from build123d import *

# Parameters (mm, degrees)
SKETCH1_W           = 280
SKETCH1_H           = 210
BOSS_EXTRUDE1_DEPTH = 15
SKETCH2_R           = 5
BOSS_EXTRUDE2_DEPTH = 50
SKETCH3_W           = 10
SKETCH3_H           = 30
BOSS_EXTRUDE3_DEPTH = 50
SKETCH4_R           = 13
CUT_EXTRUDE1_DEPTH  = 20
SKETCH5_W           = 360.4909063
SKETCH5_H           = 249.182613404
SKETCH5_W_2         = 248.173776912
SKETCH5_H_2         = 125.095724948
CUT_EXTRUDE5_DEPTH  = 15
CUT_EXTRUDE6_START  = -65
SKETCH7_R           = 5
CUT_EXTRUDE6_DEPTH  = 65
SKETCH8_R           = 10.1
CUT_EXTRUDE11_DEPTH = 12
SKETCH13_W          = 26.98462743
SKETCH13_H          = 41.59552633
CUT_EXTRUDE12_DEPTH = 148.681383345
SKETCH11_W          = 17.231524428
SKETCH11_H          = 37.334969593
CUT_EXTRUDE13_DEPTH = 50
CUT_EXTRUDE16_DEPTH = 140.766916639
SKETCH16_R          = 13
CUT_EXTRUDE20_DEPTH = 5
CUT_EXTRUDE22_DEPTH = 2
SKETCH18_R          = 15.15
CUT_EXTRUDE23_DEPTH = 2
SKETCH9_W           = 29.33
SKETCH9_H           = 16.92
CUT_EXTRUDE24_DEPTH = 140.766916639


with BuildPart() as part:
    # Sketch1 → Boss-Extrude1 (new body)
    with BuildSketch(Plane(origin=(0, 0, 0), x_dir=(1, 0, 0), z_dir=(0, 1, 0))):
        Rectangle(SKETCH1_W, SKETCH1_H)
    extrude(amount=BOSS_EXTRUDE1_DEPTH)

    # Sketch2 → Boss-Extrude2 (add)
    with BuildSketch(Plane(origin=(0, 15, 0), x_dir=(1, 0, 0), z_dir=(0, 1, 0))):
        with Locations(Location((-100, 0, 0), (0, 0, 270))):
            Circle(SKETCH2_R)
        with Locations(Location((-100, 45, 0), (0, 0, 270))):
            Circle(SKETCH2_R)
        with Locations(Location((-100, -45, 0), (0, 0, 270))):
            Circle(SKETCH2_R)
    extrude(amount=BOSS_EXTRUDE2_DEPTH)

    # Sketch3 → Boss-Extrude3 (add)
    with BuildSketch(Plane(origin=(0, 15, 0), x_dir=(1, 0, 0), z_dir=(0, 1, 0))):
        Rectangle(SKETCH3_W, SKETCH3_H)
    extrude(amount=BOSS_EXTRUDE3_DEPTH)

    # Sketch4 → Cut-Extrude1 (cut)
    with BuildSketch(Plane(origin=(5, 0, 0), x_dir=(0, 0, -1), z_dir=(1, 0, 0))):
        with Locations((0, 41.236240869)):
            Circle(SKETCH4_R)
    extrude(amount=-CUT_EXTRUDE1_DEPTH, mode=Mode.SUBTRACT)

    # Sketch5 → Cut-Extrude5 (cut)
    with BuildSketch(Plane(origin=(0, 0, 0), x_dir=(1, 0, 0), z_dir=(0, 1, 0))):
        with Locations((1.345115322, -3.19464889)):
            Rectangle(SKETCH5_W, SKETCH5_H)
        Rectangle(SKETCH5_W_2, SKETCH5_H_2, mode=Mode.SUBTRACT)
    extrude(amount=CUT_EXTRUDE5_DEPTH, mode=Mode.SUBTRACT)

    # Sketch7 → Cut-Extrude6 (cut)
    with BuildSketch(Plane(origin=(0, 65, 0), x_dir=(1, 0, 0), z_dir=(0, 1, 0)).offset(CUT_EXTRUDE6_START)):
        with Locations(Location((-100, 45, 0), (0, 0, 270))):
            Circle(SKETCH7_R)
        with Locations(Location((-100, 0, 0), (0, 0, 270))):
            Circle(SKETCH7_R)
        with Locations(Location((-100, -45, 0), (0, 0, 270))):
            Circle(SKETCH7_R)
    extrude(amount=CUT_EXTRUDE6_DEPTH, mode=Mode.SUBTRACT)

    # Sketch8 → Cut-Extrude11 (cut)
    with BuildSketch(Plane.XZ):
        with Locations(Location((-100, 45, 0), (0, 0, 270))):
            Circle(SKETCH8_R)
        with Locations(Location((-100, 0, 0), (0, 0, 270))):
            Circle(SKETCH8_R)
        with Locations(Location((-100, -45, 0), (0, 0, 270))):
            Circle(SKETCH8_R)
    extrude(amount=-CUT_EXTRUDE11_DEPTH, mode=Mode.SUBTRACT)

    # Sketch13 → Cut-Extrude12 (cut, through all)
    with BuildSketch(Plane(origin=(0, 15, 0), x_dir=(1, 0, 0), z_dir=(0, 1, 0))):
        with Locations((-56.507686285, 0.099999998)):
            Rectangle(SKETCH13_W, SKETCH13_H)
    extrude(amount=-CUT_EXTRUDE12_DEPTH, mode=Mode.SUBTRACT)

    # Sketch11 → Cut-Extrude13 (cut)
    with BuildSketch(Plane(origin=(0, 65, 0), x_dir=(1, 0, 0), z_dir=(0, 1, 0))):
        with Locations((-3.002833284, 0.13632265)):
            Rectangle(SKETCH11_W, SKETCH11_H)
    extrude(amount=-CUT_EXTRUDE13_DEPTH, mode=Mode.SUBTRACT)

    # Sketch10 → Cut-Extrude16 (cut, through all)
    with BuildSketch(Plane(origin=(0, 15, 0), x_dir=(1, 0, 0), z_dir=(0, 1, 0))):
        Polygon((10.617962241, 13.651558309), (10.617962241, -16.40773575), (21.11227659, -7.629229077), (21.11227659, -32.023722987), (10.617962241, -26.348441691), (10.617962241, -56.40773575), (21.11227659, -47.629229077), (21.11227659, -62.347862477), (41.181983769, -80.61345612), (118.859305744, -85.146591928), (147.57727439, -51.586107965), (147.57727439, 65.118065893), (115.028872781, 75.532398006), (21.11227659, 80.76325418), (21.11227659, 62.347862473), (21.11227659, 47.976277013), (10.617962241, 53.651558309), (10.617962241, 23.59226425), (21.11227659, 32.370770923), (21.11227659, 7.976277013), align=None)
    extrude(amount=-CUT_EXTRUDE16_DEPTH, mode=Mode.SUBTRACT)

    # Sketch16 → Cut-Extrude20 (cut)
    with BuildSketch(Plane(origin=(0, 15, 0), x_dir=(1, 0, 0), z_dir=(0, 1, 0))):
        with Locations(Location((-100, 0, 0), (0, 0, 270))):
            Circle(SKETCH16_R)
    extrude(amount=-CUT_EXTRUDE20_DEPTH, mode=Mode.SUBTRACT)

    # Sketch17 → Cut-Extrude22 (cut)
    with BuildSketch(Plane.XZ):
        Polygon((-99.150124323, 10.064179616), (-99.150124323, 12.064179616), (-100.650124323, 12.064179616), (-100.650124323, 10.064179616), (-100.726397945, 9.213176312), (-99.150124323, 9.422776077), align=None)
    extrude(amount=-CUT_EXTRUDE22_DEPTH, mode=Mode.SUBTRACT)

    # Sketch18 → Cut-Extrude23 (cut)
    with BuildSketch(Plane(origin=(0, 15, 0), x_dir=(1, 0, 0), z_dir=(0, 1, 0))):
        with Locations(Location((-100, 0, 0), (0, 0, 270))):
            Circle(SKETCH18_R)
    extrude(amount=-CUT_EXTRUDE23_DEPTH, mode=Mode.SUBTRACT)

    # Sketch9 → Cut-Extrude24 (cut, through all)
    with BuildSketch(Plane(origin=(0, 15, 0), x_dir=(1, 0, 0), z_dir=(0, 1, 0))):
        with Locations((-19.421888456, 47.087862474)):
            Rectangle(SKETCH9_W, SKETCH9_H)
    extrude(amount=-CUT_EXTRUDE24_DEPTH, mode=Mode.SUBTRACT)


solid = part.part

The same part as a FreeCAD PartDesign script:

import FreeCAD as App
import Part
import Sketcher
from FreeCAD import Vector

doc = App.newDocument("Part")
body = doc.addObject("PartDesign::Body", "Body")

# Sketch on XZ plane
sketch1 = body.newObject("Sketcher::SketchObject", "Sketch")
sketch1.AttachmentSupport = (doc.getObject("XZ_Plane"), [""])
sketch1.MapMode = "FlatFace"
sketch1.addGeometry([
    Part.LineSegment(Vector(-140, -105, 0), Vector(-140, 105, 0)),
    Part.LineSegment(Vector(-140, 105, 0), Vector(140, 105, 0)),
    Part.LineSegment(Vector(140, 105, 0), Vector(140, -105, 0)),
    Part.LineSegment(Vector(140, -105, 0), Vector(-140, -105, 0)),
], False)
sketch1.addConstraint([
    Sketcher.Constraint("Coincident", 0, 2, 1, 1),
    Sketcher.Constraint("Coincident", 1, 2, 2, 1),
    Sketcher.Constraint("Coincident", 2, 2, 3, 1),
    Sketcher.Constraint("Coincident", 3, 2, 0, 1),
    Sketcher.Constraint("Vertical", 0),
    Sketcher.Constraint("Horizontal", 1),
    Sketcher.Constraint("Vertical", 2),
    Sketcher.Constraint("Horizontal", 3),
    Sketcher.Constraint("Symmetric", 0, 2, 2, 2, -1, 1),
    Sketcher.Constraint("DistanceX", 1, 1, 1, 2, 280.0),
    Sketcher.Constraint("DistanceY", 0, 1, 0, 2, 210.0),
])
pad1 = body.newObject("PartDesign::Pad", "Pad")
pad1.Profile = sketch1
pad1.Length = 15
pad1.Reversed = True

# Sketch on XZ plane
sketch2 = body.newObject("Sketcher::SketchObject", "Sketch001")
sketch2.AttachmentSupport = (doc.getObject("XZ_Plane"), [""])
sketch2.MapMode = "FlatFace"
sketch2.AttachmentOffset = App.Placement(Vector(0, 0, -15), App.Rotation())
sketch2.addGeometry([
    Part.Circle(Vector(-100, 0, 0), Vector(0, 0, 1), 5),
    Part.Circle(Vector(-100, -45, 0), Vector(0, 0, 1), 5),
    Part.Circle(Vector(-100, 45, 0), Vector(0, 0, 1), 5),
], False)
sketch2.addConstraint([
    Sketcher.Constraint("Equal", 0, 1),
    Sketcher.Constraint("Equal", 1, 2),
    Sketcher.Constraint("Symmetric", 1, 3, 2, 3, -1),
    Sketcher.Constraint("PointOnObject", 0, 3, -1),
    Sketcher.Constraint("Vertical", 0, 3, 1, 3),
    Sketcher.Constraint("Diameter", 0, 10.0),
    Sketcher.Constraint("DistanceX", 0, 3, -1, 1, 100.0),
    Sketcher.Constraint("DistanceY", 1, 3, -1, 1, 45.0),
])
pad2 = body.newObject("PartDesign::Pad", "Pad001")
pad2.Profile = sketch2
pad2.Length = 50
pad2.Reversed = True

# Sketch on XZ plane
sketch3 = body.newObject("Sketcher::SketchObject", "Sketch002")
sketch3.AttachmentSupport = (doc.getObject("XZ_Plane"), [""])
sketch3.MapMode = "FlatFace"
sketch3.AttachmentOffset = App.Placement(Vector(0, 0, -15), App.Rotation())
sketch3.addGeometry([
    Part.LineSegment(Vector(-5, -15, 0), Vector(-5, 15, 0)),
    Part.LineSegment(Vector(-5, 15, 0), Vector(5, 15, 0)),
    Part.LineSegment(Vector(5, 15, 0), Vector(5, -15, 0)),
    Part.LineSegment(Vector(5, -15, 0), Vector(-5, -15, 0)),
], False)
sketch3.addConstraint([
    Sketcher.Constraint("Coincident", 0, 2, 1, 1),
    Sketcher.Constraint("Coincident", 1, 2, 2, 1),
    Sketcher.Constraint("Coincident", 2, 2, 3, 1),
    Sketcher.Constraint("Coincident", 3, 2, 0, 1),
    Sketcher.Constraint("Vertical", 0),
    Sketcher.Constraint("Horizontal", 1),
    Sketcher.Constraint("Vertical", 2),
    Sketcher.Constraint("Horizontal", 3),
    Sketcher.Constraint("Symmetric", 0, 2, 2, 2, -1, 1),
    Sketcher.Constraint("DistanceX", 1, 1, 1, 2, 10.0),
    Sketcher.Constraint("DistanceY", 0, 1, 0, 2, 30.0),
])
pad3 = body.newObject("PartDesign::Pad", "Pad002")
pad3.Profile = sketch3
pad3.Length = 50
pad3.Reversed = True

# Sketch on YZ plane
sketch4 = body.newObject("Sketcher::SketchObject", "Sketch003")
sketch4.AttachmentSupport = (doc.getObject("YZ_Plane"), [""])
sketch4.MapMode = "FlatFace"
sketch4.AttachmentOffset = App.Placement(Vector(0, 0, 5), App.Rotation())
sketch4.addGeometry(Part.Circle(Vector(41, 0, 0), Vector(0, 0, 1), 13), False)
sketch4.addConstraint([
    Sketcher.Constraint("PointOnObject", 0, 3, -1),
    Sketcher.Constraint("Diameter", 0, 26.0),
    Sketcher.Constraint("DistanceX", -1, 1, 0, 3, 41.236241),
])
pocket1 = body.newObject("PartDesign::Pocket", "Pocket")
pocket1.Profile = sketch4
pocket1.Length = 20

# Sketch on XZ plane
sketch5 = body.newObject("Sketcher::SketchObject", "Sketch004")
sketch5.AttachmentSupport = (doc.getObject("XZ_Plane"), [""])
sketch5.MapMode = "FlatFace"
sketch5.addGeometry([
    Part.LineSegment(Vector(-179, -121, 0), Vector(-179, 128, 0)),  # 0
    Part.LineSegment(Vector(-179, 128, 0), Vector(182, 128, 0)),  # 1
    Part.LineSegment(Vector(182, 128, 0), Vector(182, -121, 0)),  # 2
    Part.LineSegment(Vector(182, -121, 0), Vector(-179, -121, 0)),  # 3
    Part.LineSegment(Vector(124, 63, 0), Vector(-124, 63, 0)),  # 4
    Part.LineSegment(Vector(-124, 63, 0), Vector(-124, -63, 0)),  # 5
    Part.LineSegment(Vector(-124, -63, 0), Vector(124, -63, 0)),  # 6
    Part.LineSegment(Vector(124, -63, 0), Vector(124, 63, 0)),  # 7
], False)
sketch5.addConstraint([
    Sketcher.Constraint("Coincident", 0, 2, 1, 1),
    Sketcher.Constraint("Coincident", 1, 2, 2, 1),
    Sketcher.Constraint("Coincident", 2, 2, 3, 1),
    Sketcher.Constraint("Coincident", 3, 2, 0, 1),
    Sketcher.Constraint("Coincident", 4, 2, 5, 1),
    Sketcher.Constraint("Coincident", 5, 2, 6, 1),
    Sketcher.Constraint("Coincident", 6, 2, 7, 1),
    Sketcher.Constraint("Coincident", 7, 2, 4, 1),
    Sketcher.Constraint("Vertical", 0),
    Sketcher.Constraint("Horizontal", 1),
    Sketcher.Constraint("Vertical", 2),
    Sketcher.Constraint("Horizontal", 3),
    Sketcher.Constraint("Horizontal", 4),
    Sketcher.Constraint("Vertical", 5),
    Sketcher.Constraint("Horizontal", 6),
    Sketcher.Constraint("Vertical", 7),
    Sketcher.Constraint("Symmetric", 4, 2, 6, 2, -1, 1),
    Sketcher.Constraint("DistanceX", 1, 1, 1, 2, 360.490906),
    Sketcher.Constraint("DistanceX", 4, 2, 4, 1, 248.173777),
    Sketcher.Constraint("DistanceY", 0, 1, 0, 2, 249.182613),
    Sketcher.Constraint("DistanceY", 5, 2, 5, 1, 125.095725),
    Sketcher.Constraint("DistanceX", -1, 1, 1, 2, 181.590568),
    Sketcher.Constraint("DistanceY", 3, 2, 4, 2, 183.94452),
])
pocket2 = body.newObject("PartDesign::Pocket", "Pocket001")
pocket2.Profile = sketch5
pocket2.Length = 15

# Sketch on XZ plane
sketch6 = body.newObject("Sketcher::SketchObject", "Sketch005")
sketch6.AttachmentSupport = (doc.getObject("XZ_Plane"), [""])
sketch6.MapMode = "FlatFace"
sketch6.addGeometry([
    Part.Circle(Vector(-100, -45, 0), Vector(0, 0, 1), 5),
    Part.Circle(Vector(-100, 0, 0), Vector(0, 0, 1), 5),
    Part.Circle(Vector(-100, 45, 0), Vector(0, 0, 1), 5),
], False)
sketch6.addConstraint([
    Sketcher.Constraint("Equal", 0, 1),
    Sketcher.Constraint("Equal", 1, 2),
    Sketcher.Constraint("Symmetric", 0, 3, 2, 3, -1),
    Sketcher.Constraint("PointOnObject", 1, 3, -1),
    Sketcher.Constraint("Vertical", 0, 3, 1, 3),
    Sketcher.Constraint("Diameter", 0, 10.0),
    Sketcher.Constraint("DistanceX", 0, 3, -1, 1, 100.0),
    Sketcher.Constraint("DistanceY", 0, 3, -1, 1, 45.0),
])
pocket3 = body.newObject("PartDesign::Pocket", "Pocket002")
pocket3.Profile = sketch6
pocket3.Length = 65

# Sketch on XZ plane
sketch7 = body.newObject("Sketcher::SketchObject", "Sketch006")
sketch7.AttachmentSupport = (doc.getObject("XZ_Plane"), [""])
sketch7.MapMode = "FlatFace"
sketch7.addGeometry([
    Part.Circle(Vector(-100, 45, 0), Vector(0, 0, 1), 10),
    Part.Circle(Vector(-100, 0, 0), Vector(0, 0, 1), 10),
    Part.Circle(Vector(-100, -45, 0), Vector(0, 0, 1), 10),
], False)
sketch7.addConstraint([
    Sketcher.Constraint("Equal", 0, 1),
    Sketcher.Constraint("Equal", 1, 2),
    Sketcher.Constraint("Symmetric", 0, 3, 2, 3, -1),
    Sketcher.Constraint("PointOnObject", 1, 3, -1),
    Sketcher.Constraint("Vertical", 0, 3, 1, 3),
    Sketcher.Constraint("Diameter", 0, 20.2),
    Sketcher.Constraint("DistanceX", 0, 3, -1, 1, 100.0),
    Sketcher.Constraint("DistanceY", -1, 1, 0, 3, 45.0),
])
pocket4 = body.newObject("PartDesign::Pocket", "Pocket003")
pocket4.Profile = sketch7
pocket4.Length = 12

# Sketch on XZ plane
sketch8 = body.newObject("Sketcher::SketchObject", "Sketch007")
sketch8.AttachmentSupport = (doc.getObject("XZ_Plane"), [""])
sketch8.MapMode = "FlatFace"
sketch8.AttachmentOffset = App.Placement(Vector(0, 0, -15), App.Rotation())
sketch8.addGeometry([
    Part.LineSegment(Vector(-70, -21, 0), Vector(-70, 21, 0)),
    Part.LineSegment(Vector(-70, 21, 0), Vector(-43, 21, 0)),
    Part.LineSegment(Vector(-43, 21, 0), Vector(-43, -21, 0)),
    Part.LineSegment(Vector(-43, -21, 0), Vector(-70, -21, 0)),
], False)
sketch8.addConstraint([
    Sketcher.Constraint("Coincident", 0, 2, 1, 1),
    Sketcher.Constraint("Coincident", 1, 2, 2, 1),
    Sketcher.Constraint("Coincident", 2, 2, 3, 1),
    Sketcher.Constraint("Coincident", 3, 2, 0, 1),
    Sketcher.Constraint("Vertical", 0),
    Sketcher.Constraint("Horizontal", 1),
    Sketcher.Constraint("Vertical", 2),
    Sketcher.Constraint("Horizontal", 3),
    Sketcher.Constraint("DistanceX", 0, 2, -1, 1, 70.0),
    Sketcher.Constraint("DistanceX", 1, 1, 1, 2, 26.984627),
    Sketcher.Constraint("DistanceY", 0, 1, 0, 2, 41.595526),
    Sketcher.Constraint("DistanceY", -1, 1, 0, 2, 20.697763),
])
pocket5 = body.newObject("PartDesign::Pocket", "Pocket004")
pocket5.Profile = sketch8
pocket5.Type = "ThroughAll"
pocket5.Reversed = True

# Sketch on XZ plane
sketch9 = body.newObject("Sketcher::SketchObject", "Sketch008")
sketch9.AttachmentSupport = (doc.getObject("XZ_Plane"), [""])
sketch9.MapMode = "FlatFace"
sketch9.AttachmentOffset = App.Placement(Vector(0, 0, -65), App.Rotation())
sketch9.addGeometry([
    Part.LineSegment(Vector(-12, -19, 0), Vector(-12, 19, 0)),
    Part.LineSegment(Vector(-12, 19, 0), Vector(6, 19, 0)),
    Part.LineSegment(Vector(6, 19, 0), Vector(6, -19, 0)),
    Part.LineSegment(Vector(6, -19, 0), Vector(-12, -19, 0)),
], False)
sketch9.addConstraint([
    Sketcher.Constraint("Coincident", 0, 2, 1, 1),
    Sketcher.Constraint("Coincident", 1, 2, 2, 1),
    Sketcher.Constraint("Coincident", 2, 2, 3, 1),
    Sketcher.Constraint("Coincident", 3, 2, 0, 1),
    Sketcher.Constraint("Vertical", 0),
    Sketcher.Constraint("Horizontal", 1),
    Sketcher.Constraint("Vertical", 2),
    Sketcher.Constraint("Horizontal", 3),
    Sketcher.Constraint("DistanceY", 0, 1, 0, 2, 37.33497),
    Sketcher.Constraint("DistanceX", 1, 1, 1, 2, 17.231524),
    Sketcher.Constraint("DistanceX", -1, 1, 1, 2, 5.612929),
    Sketcher.Constraint("DistanceY", -1, 1, 0, 2, 18.531162),
])
pocket6 = body.newObject("PartDesign::Pocket", "Pocket005")
pocket6.Profile = sketch9
pocket6.Length = 50
pocket6.Reversed = True

# Sketch on XZ plane
sketch10 = body.newObject("Sketcher::SketchObject", "Sketch009")
sketch10.AttachmentSupport = (doc.getObject("XZ_Plane"), [""])
sketch10.MapMode = "FlatFace"
sketch10.AttachmentOffset = App.Placement(Vector(0, 0, -15), App.Rotation())
sketch10.addGeometry([
    Part.LineSegment(Vector(11, -14, 0), Vector(11, 16, 0)),  # 0
    Part.LineSegment(Vector(11, 16, 0), Vector(21, 8, 0)),  # 1
    Part.LineSegment(Vector(21, 8, 0), Vector(21, 32, 0)),  # 2
    Part.LineSegment(Vector(21, 32, 0), Vector(11, 26, 0)),  # 3
    Part.LineSegment(Vector(11, 26, 0), Vector(11, 56, 0)),  # 4
    Part.LineSegment(Vector(11, 56, 0), Vector(21, 48, 0)),  # 5
    Part.LineSegment(Vector(21, 48, 0), Vector(21, 62, 0)),  # 6
    Part.LineSegment(Vector(21, 62, 0), Vector(41, 81, 0)),  # 7
    Part.LineSegment(Vector(41, 81, 0), Vector(119, 85, 0)),  # 8
    Part.LineSegment(Vector(119, 85, 0), Vector(148, 52, 0)),  # 9
    Part.LineSegment(Vector(148, 52, 0), Vector(148, -65, 0)),  # 10
    Part.LineSegment(Vector(148, -65, 0), Vector(115, -76, 0)),  # 11
    Part.LineSegment(Vector(115, -76, 0), Vector(21, -81, 0)),  # 12
    Part.LineSegment(Vector(21, -81, 0), Vector(21, -48, 0)),  # 13
    Part.LineSegment(Vector(21, -48, 0), Vector(11, -54, 0)),  # 14
    Part.LineSegment(Vector(11, -54, 0), Vector(11, -24, 0)),  # 15
    Part.LineSegment(Vector(11, -24, 0), Vector(21, -32, 0)),  # 16
    Part.LineSegment(Vector(21, -32, 0), Vector(21, -8, 0)),  # 17
    Part.LineSegment(Vector(21, -8, 0), Vector(11, -14, 0)),  # 18
], False)
sketch10.addConstraint([
    Sketcher.Constraint("Coincident", 0, 2, 1, 1),
    Sketcher.Constraint("Coincident", 1, 2, 2, 1),
    Sketcher.Constraint("Coincident", 2, 2, 3, 1),
    Sketcher.Constraint("Coincident", 3, 2, 4, 1),
    Sketcher.Constraint("Coincident", 4, 2, 5, 1),
    Sketcher.Constraint("Coincident", 5, 2, 6, 1),
    Sketcher.Constraint("Coincident", 6, 2, 7, 1),
    Sketcher.Constraint("Coincident", 7, 2, 8, 1),
    Sketcher.Constraint("Coincident", 8, 2, 9, 1),
    Sketcher.Constraint("Coincident", 9, 2, 10, 1),
    Sketcher.Constraint("Coincident", 10, 2, 11, 1),
    Sketcher.Constraint("Coincident", 11, 2, 12, 1),
    Sketcher.Constraint("Coincident", 12, 2, 13, 1),
    Sketcher.Constraint("Coincident", 13, 2, 14, 1),
    Sketcher.Constraint("Coincident", 14, 2, 15, 1),
    Sketcher.Constraint("Coincident", 15, 2, 16, 1),
    Sketcher.Constraint("Coincident", 16, 2, 17, 1),
    Sketcher.Constraint("Coincident", 17, 2, 18, 1),
    Sketcher.Constraint("Coincident", 18, 2, 0, 1),
    Sketcher.Constraint("Vertical", 0),
    Sketcher.Constraint("Vertical", 2),
    Sketcher.Constraint("Vertical", 4),
    Sketcher.Constraint("Vertical", 6),
    Sketcher.Constraint("Vertical", 10),
    Sketcher.Constraint("Vertical", 13),
    Sketcher.Constraint("Vertical", 15),
    Sketcher.Constraint("Vertical", 17),
    Sketcher.Constraint("Parallel", 1, 5),
    Sketcher.Constraint("Parallel", 3, 14),
    Sketcher.Constraint("Parallel", 5, 16),
    Sketcher.Constraint("Parallel", 14, 18),
    Sketcher.Constraint("Vertical", 0, 2, 3, 2),
    Sketcher.Constraint("Vertical", 2, 2, 5, 2),
    Sketcher.Constraint("Vertical", 6, 2, 12, 2),
    Sketcher.Constraint("Vertical", 4, 2, 14, 2),
    Sketcher.Constraint("Vertical", 13, 2, 16, 2),
    Sketcher.Constraint("Equal", 0, 4),
    Sketcher.Constraint("Equal", 4, 15),
    Sketcher.Constraint("Equal", 2, 17),
    Sketcher.Constraint("DistanceY", 0, 2, 4, 2, 40.0),
    Sketcher.Constraint("DistanceY", 11, 2, -1, 1, 75.532398),
    Sketcher.Constraint("DistanceY", 10, 2, 0, 2, 81.525802),
    Sketcher.Constraint("DistanceX", 11, 2, 10, 2, 32.548402),
    Sketcher.Constraint("Distance", 3, 11.93061),
    Sketcher.Constraint("Distance", 9, 44.17044),
    Sketcher.Constraint("Distance", 11, 34.173919),
    Sketcher.Constraint("DistanceY", 0, 1, 0, 2, 30.059294),
    Sketcher.Constraint("DistanceY", 2, 1, 2, 2, 24.394494),
    Sketcher.Constraint("DistanceY", 6, 1, 6, 2, 14.718633),
    Sketcher.Constraint("DistanceY", 10, 2, 10, 1, 116.704174),
    Sketcher.Constraint("DistanceY", 13, 1, 13, 2, 32.786977),
    Sketcher.Constraint("DistanceY", -1, 1, 1, 2, 7.629229),
    Sketcher.Constraint("DistanceY", -1, 1, 8, 2, 85.146592),
    Sketcher.Constraint("DistanceX", 4, 2, 7, 2, 30.564022),
    Sketcher.Constraint("DistanceY", 4, 2, 7, 2, 24.20572),
    Sketcher.Constraint("DistanceX", 7, 2, 8, 2, 77.677322),
    Sketcher.Constraint("DistanceX", -1, 1, 0, 2, 10.617962),
])
pocket7 = body.newObject("PartDesign::Pocket", "Pocket006")
pocket7.Profile = sketch10
pocket7.Type = "ThroughAll"
pocket7.Reversed = True

# Sketch on XZ plane
sketch11 = body.newObject("Sketcher::SketchObject", "Sketch010")
sketch11.AttachmentSupport = (doc.getObject("XZ_Plane"), [""])
sketch11.MapMode = "FlatFace"
sketch11.AttachmentOffset = App.Placement(Vector(0, 0, -15), App.Rotation())
sketch11.addGeometry(Part.Circle(Vector(-100, 0, 0), Vector(0, 0, 1), 13), False)
sketch11.addConstraint([
    Sketcher.Constraint("PointOnObject", 0, 3, -1),
    Sketcher.Constraint("Diameter", 0, 26.0),
    Sketcher.Constraint("DistanceX", 0, 3, -1, 1, 100.0),
])
pocket8 = body.newObject("PartDesign::Pocket", "Pocket007")
pocket8.Profile = sketch11
pocket8.Length = 5
pocket8.Reversed = True

# Sketch on XZ plane
sketch12 = body.newObject("Sketcher::SketchObject", "Sketch011")
sketch12.AttachmentSupport = (doc.getObject("XZ_Plane"), [""])
sketch12.MapMode = "FlatFace"
sketch12.addGeometry([
    Part.LineSegment(Vector(-99.150124, 12.06418, 0), Vector(-100.650124, 12.06418, 0)),  # 0
    Part.LineSegment(Vector(-100.650124, 12.06418, 0), Vector(-100.650124, 10.06418, 0)),  # 1
    Part.LineSegment(Vector(-100.650124, 10.06418, 0), Vector(-100.726398, 9.213176, 0)),  # 2
    Part.LineSegment(Vector(-100.726398, 9.213176, 0), Vector(-99.150124, 9.422776, 0)),  # 3
    Part.LineSegment(Vector(-99.150124, 9.422776, 0), Vector(-99.150124, 12.06418, 0)),  # 4
], False)
sketch12.addConstraint([
    Sketcher.Constraint("Coincident", 0, 2, 1, 1),
    Sketcher.Constraint("Coincident", 1, 2, 2, 1),
    Sketcher.Constraint("Coincident", 2, 2, 3, 1),
    Sketcher.Constraint("Coincident", 3, 2, 4, 1),
    Sketcher.Constraint("Coincident", 4, 2, 0, 1),
    Sketcher.Constraint("Horizontal", 0),
    Sketcher.Constraint("Vertical", 1),
    Sketcher.Constraint("Vertical", 4),
    Sketcher.Constraint("DistanceY", 1, 2, 1, 1, 2.0),
    Sketcher.Constraint("DistanceX", 0, 2, 0, 1, 1.5),
    Sketcher.Constraint("DistanceY", 2, 2, 3, 2, 0.2096),
    Sketcher.Constraint("DistanceY", 4, 1, 4, 2, 2.641404),
    Sketcher.Constraint("DistanceY", -1, 1, 0, 2, 12.06418),
    Sketcher.Constraint("Distance", 2, 0.854415),
    Sketcher.Constraint("DistanceX", 0, 2, -1, 1, 100.650124),
])
pocket9 = body.newObject("PartDesign::Pocket", "Pocket008")
pocket9.Profile = sketch12
pocket9.Length = 2

# Sketch on XZ plane
sketch13 = body.newObject("Sketcher::SketchObject", "Sketch012")
sketch13.AttachmentSupport = (doc.getObject("XZ_Plane"), [""])
sketch13.MapMode = "FlatFace"
sketch13.AttachmentOffset = App.Placement(Vector(0, 0, -15), App.Rotation())
sketch13.addGeometry(Part.Circle(Vector(-100, 0, 0), Vector(0, 0, 1), 15), False)
sketch13.addConstraint([
    Sketcher.Constraint("PointOnObject", 0, 3, -1),
    Sketcher.Constraint("Diameter", 0, 30.3),
    Sketcher.Constraint("DistanceX", 0, 3, -1, 1, 100.0),
])
pocket10 = body.newObject("PartDesign::Pocket", "Pocket009")
pocket10.Profile = sketch13
pocket10.Length = 2
pocket10.Reversed = True

# Sketch on XZ plane
sketch14 = body.newObject("Sketcher::SketchObject", "Sketch013")
sketch14.AttachmentSupport = (doc.getObject("XZ_Plane"), [""])
sketch14.MapMode = "FlatFace"
sketch14.AttachmentOffset = App.Placement(Vector(0, 0, -15), App.Rotation())
sketch14.addGeometry([
    Part.LineSegment(Vector(-34, -56, 0), Vector(-34, -39, 0)),
    Part.LineSegment(Vector(-34, -39, 0), Vector(-5, -39, 0)),
    Part.LineSegment(Vector(-5, -39, 0), Vector(-5, -56, 0)),
    Part.LineSegment(Vector(-5, -56, 0), Vector(-34, -56, 0)),
], False)
sketch14.addConstraint([
    Sketcher.Constraint("Coincident", 0, 2, 1, 1),
    Sketcher.Constraint("Coincident", 1, 2, 2, 1),
    Sketcher.Constraint("Coincident", 2, 2, 3, 1),
    Sketcher.Constraint("Coincident", 3, 2, 0, 1),
    Sketcher.Constraint("Vertical", 0),
    Sketcher.Constraint("Horizontal", 1),
    Sketcher.Constraint("Vertical", 2),
    Sketcher.Constraint("Horizontal", 3),
    Sketcher.Constraint("DistanceX", 1, 1, 1, 2, 29.33),
    Sketcher.Constraint("DistanceY", 0, 1, 0, 2, 16.92),
    Sketcher.Constraint("DistanceX", 0, 2, -1, 1, 34.086888),
    Sketcher.Constraint("DistanceY", 0, 2, -1, 1, 38.627862),
])
pocket11 = body.newObject("PartDesign::Pocket", "Pocket010")
pocket11.Profile = sketch14
pocket11.Type = "ThroughAll"
pocket11.Reversed = True

doc.recompute()
